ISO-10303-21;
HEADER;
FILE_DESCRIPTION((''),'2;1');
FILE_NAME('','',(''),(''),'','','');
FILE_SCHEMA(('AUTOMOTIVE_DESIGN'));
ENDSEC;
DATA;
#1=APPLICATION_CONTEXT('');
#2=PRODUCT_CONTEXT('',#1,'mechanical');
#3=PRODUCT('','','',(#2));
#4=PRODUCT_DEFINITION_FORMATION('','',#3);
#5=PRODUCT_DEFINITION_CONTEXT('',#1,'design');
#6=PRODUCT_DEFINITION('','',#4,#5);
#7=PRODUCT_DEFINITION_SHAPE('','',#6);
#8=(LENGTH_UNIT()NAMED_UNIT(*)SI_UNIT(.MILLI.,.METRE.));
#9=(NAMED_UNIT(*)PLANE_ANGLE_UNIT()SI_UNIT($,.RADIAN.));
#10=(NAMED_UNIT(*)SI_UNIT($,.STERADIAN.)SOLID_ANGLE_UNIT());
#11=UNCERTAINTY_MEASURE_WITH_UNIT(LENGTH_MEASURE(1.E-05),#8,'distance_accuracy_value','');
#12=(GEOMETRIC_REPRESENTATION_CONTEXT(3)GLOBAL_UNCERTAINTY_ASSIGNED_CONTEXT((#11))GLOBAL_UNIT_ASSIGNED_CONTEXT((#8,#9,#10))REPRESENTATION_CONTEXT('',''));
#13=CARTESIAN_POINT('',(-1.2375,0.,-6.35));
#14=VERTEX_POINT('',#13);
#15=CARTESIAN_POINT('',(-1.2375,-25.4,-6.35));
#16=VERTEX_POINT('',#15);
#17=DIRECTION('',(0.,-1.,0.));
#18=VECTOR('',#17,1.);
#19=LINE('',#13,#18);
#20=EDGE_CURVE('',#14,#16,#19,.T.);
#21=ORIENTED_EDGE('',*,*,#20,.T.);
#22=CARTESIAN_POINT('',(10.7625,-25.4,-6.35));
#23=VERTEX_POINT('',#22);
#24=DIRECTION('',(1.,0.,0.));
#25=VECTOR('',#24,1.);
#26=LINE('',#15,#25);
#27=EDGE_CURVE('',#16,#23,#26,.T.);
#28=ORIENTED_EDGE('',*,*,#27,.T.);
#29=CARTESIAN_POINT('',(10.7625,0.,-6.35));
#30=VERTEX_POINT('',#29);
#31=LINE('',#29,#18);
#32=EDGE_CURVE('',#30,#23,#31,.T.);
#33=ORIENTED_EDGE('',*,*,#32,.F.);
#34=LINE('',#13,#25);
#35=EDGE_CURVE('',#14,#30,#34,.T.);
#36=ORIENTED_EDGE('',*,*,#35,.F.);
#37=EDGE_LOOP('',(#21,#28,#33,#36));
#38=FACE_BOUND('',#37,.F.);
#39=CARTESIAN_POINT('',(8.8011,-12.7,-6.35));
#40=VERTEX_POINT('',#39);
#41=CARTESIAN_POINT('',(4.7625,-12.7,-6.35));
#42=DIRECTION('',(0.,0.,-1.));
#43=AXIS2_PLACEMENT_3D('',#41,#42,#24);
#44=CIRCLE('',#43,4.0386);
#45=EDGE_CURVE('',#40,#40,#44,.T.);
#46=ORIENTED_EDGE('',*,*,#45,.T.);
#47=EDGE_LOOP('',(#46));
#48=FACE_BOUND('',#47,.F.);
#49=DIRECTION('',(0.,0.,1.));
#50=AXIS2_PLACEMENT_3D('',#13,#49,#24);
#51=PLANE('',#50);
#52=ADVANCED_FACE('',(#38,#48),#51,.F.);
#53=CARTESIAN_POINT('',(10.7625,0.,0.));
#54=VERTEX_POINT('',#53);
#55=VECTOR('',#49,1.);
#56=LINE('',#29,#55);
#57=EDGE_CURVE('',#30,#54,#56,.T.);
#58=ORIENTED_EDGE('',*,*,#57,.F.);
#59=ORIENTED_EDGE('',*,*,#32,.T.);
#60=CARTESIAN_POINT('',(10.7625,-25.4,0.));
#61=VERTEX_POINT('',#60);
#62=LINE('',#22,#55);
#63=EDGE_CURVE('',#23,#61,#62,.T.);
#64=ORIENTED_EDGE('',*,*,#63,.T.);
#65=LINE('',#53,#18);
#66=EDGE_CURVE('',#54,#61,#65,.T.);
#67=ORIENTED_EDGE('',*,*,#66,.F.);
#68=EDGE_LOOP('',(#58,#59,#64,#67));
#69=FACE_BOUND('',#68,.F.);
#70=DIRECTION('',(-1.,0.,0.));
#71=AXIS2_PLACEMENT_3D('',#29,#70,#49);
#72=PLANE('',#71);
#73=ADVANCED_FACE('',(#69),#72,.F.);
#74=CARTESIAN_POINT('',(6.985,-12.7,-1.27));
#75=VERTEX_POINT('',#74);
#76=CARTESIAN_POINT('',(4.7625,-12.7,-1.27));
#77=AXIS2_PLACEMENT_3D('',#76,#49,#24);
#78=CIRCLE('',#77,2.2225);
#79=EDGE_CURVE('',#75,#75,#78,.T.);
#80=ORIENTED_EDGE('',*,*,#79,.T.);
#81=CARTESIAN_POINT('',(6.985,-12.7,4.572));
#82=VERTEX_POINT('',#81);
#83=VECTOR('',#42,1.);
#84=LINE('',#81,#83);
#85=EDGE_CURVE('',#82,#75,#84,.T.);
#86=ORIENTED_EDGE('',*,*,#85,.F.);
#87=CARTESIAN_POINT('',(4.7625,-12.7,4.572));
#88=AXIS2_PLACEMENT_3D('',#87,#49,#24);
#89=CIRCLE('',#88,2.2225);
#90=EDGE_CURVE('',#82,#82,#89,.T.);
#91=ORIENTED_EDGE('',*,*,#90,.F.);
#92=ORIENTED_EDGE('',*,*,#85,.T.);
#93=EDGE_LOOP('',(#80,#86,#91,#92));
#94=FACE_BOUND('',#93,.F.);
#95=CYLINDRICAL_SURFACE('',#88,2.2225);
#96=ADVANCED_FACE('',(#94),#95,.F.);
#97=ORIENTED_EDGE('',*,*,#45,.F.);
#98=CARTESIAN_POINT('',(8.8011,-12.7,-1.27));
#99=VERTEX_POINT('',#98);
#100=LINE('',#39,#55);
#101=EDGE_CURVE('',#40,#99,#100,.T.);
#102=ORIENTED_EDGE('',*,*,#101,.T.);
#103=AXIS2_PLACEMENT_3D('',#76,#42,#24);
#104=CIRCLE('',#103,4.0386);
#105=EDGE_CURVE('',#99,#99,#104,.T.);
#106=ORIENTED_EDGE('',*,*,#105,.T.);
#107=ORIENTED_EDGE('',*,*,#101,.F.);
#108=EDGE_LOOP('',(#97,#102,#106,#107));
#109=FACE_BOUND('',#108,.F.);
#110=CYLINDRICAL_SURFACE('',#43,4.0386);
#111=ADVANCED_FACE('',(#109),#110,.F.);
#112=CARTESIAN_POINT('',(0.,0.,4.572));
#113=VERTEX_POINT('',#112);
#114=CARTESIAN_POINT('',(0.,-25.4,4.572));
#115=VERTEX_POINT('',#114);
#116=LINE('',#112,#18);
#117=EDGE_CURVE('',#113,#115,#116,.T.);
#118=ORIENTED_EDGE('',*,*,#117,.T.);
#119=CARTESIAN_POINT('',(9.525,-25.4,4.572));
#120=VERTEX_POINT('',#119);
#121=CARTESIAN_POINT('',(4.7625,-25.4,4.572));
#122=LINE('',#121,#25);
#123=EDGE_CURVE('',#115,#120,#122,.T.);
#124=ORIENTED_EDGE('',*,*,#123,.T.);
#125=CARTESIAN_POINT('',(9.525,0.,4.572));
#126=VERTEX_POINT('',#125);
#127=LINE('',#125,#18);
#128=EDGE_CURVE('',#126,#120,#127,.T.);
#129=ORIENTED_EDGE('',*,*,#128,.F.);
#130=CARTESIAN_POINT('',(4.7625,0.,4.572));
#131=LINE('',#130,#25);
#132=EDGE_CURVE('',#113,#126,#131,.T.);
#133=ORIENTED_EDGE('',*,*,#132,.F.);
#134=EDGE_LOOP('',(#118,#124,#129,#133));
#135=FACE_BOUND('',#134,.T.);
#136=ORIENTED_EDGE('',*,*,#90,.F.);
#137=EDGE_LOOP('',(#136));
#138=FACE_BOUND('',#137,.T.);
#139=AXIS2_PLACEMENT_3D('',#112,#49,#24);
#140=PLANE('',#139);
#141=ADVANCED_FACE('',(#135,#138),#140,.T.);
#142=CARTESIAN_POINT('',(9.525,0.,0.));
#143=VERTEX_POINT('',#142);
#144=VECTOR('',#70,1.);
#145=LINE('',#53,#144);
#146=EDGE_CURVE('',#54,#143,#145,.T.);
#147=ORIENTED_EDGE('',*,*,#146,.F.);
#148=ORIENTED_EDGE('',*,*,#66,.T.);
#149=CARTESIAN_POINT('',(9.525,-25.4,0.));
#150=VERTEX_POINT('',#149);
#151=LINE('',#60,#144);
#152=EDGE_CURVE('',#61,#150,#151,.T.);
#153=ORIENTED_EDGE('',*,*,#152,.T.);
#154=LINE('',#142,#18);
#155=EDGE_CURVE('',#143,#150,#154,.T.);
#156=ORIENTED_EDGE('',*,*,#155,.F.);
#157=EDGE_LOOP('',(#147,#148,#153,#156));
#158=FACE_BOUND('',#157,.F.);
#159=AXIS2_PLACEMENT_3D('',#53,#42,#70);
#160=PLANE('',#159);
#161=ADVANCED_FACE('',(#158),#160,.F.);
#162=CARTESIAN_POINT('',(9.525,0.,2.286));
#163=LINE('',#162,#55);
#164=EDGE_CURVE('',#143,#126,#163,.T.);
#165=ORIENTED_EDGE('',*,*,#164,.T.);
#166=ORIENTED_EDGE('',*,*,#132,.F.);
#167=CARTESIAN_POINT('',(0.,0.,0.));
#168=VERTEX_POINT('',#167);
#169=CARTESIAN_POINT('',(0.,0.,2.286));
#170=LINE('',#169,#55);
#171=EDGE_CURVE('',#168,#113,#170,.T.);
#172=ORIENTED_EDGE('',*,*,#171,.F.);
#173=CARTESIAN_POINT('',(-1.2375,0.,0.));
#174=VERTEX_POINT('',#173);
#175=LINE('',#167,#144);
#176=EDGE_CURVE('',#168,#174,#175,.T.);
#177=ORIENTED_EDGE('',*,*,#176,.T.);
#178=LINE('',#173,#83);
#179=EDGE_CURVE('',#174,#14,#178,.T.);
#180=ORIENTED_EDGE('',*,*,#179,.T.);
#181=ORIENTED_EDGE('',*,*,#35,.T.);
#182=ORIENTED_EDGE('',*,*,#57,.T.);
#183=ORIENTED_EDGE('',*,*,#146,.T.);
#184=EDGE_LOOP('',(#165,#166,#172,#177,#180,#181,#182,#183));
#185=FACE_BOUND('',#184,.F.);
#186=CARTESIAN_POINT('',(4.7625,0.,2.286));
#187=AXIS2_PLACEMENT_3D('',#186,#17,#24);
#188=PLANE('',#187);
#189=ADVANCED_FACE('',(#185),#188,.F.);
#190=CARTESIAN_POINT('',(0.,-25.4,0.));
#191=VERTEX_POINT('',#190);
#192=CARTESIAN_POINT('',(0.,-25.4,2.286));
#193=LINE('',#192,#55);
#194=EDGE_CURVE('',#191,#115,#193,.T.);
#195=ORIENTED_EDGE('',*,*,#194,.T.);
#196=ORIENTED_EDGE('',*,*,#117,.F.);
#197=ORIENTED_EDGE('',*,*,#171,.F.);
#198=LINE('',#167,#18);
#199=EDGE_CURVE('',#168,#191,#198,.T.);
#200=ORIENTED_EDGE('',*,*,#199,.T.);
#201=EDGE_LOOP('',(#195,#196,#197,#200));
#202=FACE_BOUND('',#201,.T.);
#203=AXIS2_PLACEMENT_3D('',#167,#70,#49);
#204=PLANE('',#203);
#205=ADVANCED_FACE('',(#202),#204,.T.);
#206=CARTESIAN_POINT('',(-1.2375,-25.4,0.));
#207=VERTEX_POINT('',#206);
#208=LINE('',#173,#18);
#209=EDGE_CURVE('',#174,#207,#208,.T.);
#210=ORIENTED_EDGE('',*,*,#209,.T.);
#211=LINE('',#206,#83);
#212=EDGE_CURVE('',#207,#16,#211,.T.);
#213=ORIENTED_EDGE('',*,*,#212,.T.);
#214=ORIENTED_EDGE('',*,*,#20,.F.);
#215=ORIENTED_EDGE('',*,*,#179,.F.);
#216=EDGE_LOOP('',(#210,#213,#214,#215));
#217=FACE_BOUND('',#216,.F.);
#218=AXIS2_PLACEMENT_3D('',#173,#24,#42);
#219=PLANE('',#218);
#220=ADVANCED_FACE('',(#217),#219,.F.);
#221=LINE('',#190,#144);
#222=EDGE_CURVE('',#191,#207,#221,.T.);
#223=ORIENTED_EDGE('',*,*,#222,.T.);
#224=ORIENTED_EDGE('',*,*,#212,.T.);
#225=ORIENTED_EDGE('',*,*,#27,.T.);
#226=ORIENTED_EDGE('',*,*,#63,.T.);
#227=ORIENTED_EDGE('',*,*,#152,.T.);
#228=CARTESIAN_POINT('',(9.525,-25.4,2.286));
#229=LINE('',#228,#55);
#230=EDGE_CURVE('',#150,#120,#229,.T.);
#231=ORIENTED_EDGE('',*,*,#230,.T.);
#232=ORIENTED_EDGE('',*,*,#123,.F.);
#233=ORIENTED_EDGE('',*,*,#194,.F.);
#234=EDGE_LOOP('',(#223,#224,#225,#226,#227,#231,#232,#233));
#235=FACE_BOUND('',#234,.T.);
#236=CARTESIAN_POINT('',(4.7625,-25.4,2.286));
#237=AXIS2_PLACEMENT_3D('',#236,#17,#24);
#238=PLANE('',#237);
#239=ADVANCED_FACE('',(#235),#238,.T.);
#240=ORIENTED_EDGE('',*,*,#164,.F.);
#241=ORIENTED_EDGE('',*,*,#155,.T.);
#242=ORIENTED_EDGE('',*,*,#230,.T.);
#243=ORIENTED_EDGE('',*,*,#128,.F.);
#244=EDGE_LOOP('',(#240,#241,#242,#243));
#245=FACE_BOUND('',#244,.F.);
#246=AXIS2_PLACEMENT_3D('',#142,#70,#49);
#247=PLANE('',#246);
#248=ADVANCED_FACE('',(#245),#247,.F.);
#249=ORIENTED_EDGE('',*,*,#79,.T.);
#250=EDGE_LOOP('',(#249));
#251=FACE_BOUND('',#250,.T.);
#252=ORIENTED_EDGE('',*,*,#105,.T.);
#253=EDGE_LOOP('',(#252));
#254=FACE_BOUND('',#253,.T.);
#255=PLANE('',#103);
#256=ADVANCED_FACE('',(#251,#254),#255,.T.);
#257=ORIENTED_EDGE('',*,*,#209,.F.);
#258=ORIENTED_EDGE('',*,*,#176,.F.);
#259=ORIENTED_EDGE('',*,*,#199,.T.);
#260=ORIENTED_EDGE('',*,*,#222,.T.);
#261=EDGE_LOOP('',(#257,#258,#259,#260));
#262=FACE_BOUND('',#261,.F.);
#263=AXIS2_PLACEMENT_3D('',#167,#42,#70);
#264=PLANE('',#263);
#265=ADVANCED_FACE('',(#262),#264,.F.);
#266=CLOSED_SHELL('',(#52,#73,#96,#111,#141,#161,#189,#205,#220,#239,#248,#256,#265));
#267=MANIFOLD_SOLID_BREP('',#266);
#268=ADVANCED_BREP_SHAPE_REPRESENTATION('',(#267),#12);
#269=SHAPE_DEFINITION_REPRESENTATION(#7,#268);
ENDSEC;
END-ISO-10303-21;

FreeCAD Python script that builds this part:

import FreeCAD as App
import Part
import Sketcher
Q = App.Units.Quantity

doc = App.newDocument("Part")
params = doc.addObject("Spreadsheet::Sheet", "Params")
for row, (alias, value) in enumerate([
    ("sketch1_height", "0.18 in"),
    ("sketch1_height2", "0.25 in"),
    ("sketch1_width", "0.375 in"),
    ("pad1_length", "1 in"),
    ("sketch2_diameter", "0.175 in"),
    ("sketch3_diameter", "0.318 in"),
    ("pocket2_length", "0.2 in"),
], start=1):
    params.set(f"A{row}", alias)
    params.set(f"B{row}", "=" + value)
    params.setAlias(f"B{row}", alias)

body = doc.addObject("PartDesign::Body", "Body")

# Sketch on XZ plane
sketch1 = body.newObject("Sketcher::SketchObject", "Sketch")
sketch1.AttachmentSupport = (doc.getObject("XZ_Plane"), [""])
sketch1.MapMode = "FlatFace"
sketch1.addGeometry([
    Part.LineSegment(App.Vector(0, 4.572, 0), App.Vector(0, 0, 0)),  # 0
    Part.LineSegment(App.Vector(0, 0, 0), App.Vector(-1.2375, 0, 0)),  # 1
    Part.LineSegment(App.Vector(-1.2375, 0, 0), App.Vector(-1.2375, -6.35, 0)),  # 2
    Part.LineSegment(App.Vector(-1.2375, -6.35, 0), App.Vector(10.7625, -6.35, 0)),  # 3
    Part.LineSegment(App.Vector(10.7625, -6.35, 0), App.Vector(10.7625, 0, 0)),  # 4
    Part.LineSegment(App.Vector(10.7625, 0, 0), App.Vector(9.525, 0, 0)),  # 5
    Part.LineSegment(App.Vector(9.525, 0, 0), App.Vector(9.525, 4.572, 0)),  # 6
    Part.LineSegment(App.Vector(9.525, 4.572, 0), App.Vector(0, 4.572, 0)),  # 7
], False)
sketch1.addConstraint([
    Sketcher.Constraint("Coincident", 0, 2, 1, 1),
    Sketcher.Constraint("Coincident", 1, 2, 2, 1),
    Sketcher.Constraint("Coincident", 2, 2, 3, 1),
    Sketcher.Constraint("Coincident", 3, 2, 4, 1),
    Sketcher.Constraint("Coincident", 4, 2, 5, 1),
    Sketcher.Constraint("Coincident", 5, 2, 6, 1),
    Sketcher.Constraint("Coincident", 6, 2, 7, 1),
    Sketcher.Constraint("Coincident", 7, 2, 0, 1),
    Sketcher.Constraint("Vertical", 0),
    Sketcher.Constraint("Horizontal", 1),
    Sketcher.Constraint("Vertical", 2),
    Sketcher.Constraint("Horizontal", 3),
    Sketcher.Constraint("Vertical", 4),
    Sketcher.Constraint("Horizontal", 5),
    Sketcher.Constraint("Vertical", 6),
    Sketcher.Constraint("Horizontal", 7),
    Sketcher.Constraint("Coincident", 0, 2, -1, 1),
    Sketcher.Constraint("PointOnObject", 4, 2, -1),
    Sketcher.Constraint("Equal", 1, 5),
    Sketcher.Constraint("DistanceY", 0, 2, 0, 1, Q("0.18 in")),
    Sketcher.Constraint("DistanceY", 2, 2, 2, 1, Q("0.25 in")),
    Sketcher.Constraint("DistanceX", 7, 2, 7, 1, Q("0.375 in")),
    Sketcher.Constraint("DistanceX", 1, 2, 1, 1, 1.2375),
])
sketch1.setExpression("Constraints[19]", "Params.sketch1_height")
sketch1.setExpression("Constraints[20]", "Params.sketch1_height2")
sketch1.setExpression("Constraints[21]", "Params.sketch1_width")
pad1 = body.newObject("PartDesign::Pad", "Pad")
pad1.Profile = sketch1
pad1.setExpression("Length", "Params.pad1_length")

# Sketch on XY plane
sketch2 = body.newObject("Sketcher::SketchObject", "Sketch001")
sketch2.AttachmentSupport = (doc.getObject("XY_Plane"), [""])
sketch2.MapMode = "FlatFace"
sketch2.AttachmentOffset = App.Placement(App.Vector(0, 0, 0.18 * 25.4), App.Rotation())
sketch2.addGeometry(Part.Circle(App.Vector(4.7625, -12.7, 0), App.Vector(0, 0, 1), 2.2225), False)
sketch2.addConstraint([
    Sketcher.Constraint("Diameter", 0, Q("0.175 in")),
    Sketcher.Constraint("DistanceY", 0, 3, -1, 1, Q("0.5 in")),
    Sketcher.Constraint("DistanceX", -1, 1, 0, 3, Q("0.1875 in")),
])
sketch2.setExpression("Constraints[0]", "Params.sketch2_diameter")
pocket1 = body.newObject("PartDesign::Pocket", "Pocket")
pocket1.Profile = sketch2
pocket1.Type = "ThroughAll"

# Sketch on XY plane
sketch3 = body.newObject("Sketcher::SketchObject", "Sketch002")
sketch3.AttachmentSupport = (doc.getObject("XY_Plane"), [""])
sketch3.MapMode = "FlatFace"
sketch3.AttachmentOffset = App.Placement(App.Vector(0, 0, -0.25 * 25.4), App.Rotation())
sketch3.addGeometry(Part.Circle(App.Vector(4.7625, -12.7, 0), App.Vector(0, 0, 1), 4.0386), False)
sketch3.addConstraint([
    Sketcher.Constraint("Diameter", 0, Q("0.318 in")),
    Sketcher.Constraint("DistanceY", 0, 3, -1, 1, Q("0.5 in")),
    Sketcher.Constraint("DistanceX", -1, 1, 0, 3, Q("0.1875 in")),
])
sketch3.setExpression("Constraints[0]", "Params.sketch3_diameter")
pocket2 = body.newObject("PartDesign::Pocket", "Pocket001")
pocket2.Profile = sketch3
pocket2.setExpression("Length", "Params.pocket2_length")
pocket2.Reversed = True

doc.recompute()
